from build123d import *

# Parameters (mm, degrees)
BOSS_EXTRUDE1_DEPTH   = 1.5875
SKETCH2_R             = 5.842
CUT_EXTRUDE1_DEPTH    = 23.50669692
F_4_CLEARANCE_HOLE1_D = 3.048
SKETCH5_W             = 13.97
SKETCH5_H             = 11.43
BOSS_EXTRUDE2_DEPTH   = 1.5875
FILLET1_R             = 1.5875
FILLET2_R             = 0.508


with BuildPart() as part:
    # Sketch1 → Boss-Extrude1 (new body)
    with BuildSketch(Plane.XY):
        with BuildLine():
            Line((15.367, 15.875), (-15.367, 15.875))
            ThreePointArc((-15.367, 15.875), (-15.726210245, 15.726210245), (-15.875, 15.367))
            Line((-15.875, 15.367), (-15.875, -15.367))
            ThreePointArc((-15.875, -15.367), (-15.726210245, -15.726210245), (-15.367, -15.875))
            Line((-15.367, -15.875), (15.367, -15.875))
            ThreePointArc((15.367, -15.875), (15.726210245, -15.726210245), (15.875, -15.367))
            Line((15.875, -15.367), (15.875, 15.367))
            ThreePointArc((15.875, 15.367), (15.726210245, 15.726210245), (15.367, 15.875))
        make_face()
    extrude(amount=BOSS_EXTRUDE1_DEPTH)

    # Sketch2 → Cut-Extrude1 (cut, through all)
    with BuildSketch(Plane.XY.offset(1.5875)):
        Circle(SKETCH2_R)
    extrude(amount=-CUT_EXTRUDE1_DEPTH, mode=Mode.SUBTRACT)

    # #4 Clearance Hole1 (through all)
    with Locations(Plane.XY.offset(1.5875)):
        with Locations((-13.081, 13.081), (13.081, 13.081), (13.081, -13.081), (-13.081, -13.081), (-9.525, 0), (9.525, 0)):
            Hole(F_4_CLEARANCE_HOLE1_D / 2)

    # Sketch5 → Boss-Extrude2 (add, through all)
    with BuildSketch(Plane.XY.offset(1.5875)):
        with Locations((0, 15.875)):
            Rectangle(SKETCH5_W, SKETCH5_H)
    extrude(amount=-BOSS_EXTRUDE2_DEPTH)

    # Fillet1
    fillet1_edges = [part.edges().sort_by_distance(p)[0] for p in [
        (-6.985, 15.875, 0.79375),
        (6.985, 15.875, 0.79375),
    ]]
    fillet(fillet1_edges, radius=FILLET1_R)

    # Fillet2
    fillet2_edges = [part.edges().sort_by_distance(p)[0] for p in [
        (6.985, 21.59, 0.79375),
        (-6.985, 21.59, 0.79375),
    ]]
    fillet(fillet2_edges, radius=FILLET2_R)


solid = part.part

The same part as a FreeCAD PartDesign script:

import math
import FreeCAD as App
import Part
import Sketcher
Q = App.Units.Quantity


def edges_at(feature, points):
    """Names of the edges that pass closest to the given points."""
    edges = feature.Shape.Edges
    near = lambda p: min(range(len(edges)), key=lambda i: edges[i].distToShape(Part.Vertex(*p))[0])
    return sorted({f"Edge{near(p) + 1}" for p in points})

doc = App.newDocument("Part")
params = doc.addObject("Spreadsheet::Sheet", "Params")
for row, (alias, value) in enumerate([
    ("sketch1_radius", "0.02 in"),
    ("sketch1_width", "1.21 in"),
    ("pad1_length", "0.0625 in"),
    ("sketch2_diameter", "0.46 in"),
    ("sketch3_diameter", "0.12 in"),
    ("hole_diameter", "0.12 in"),
    ("sketch4_width", "0.55 in"),
    ("sketch4_height", "0.45 in"),
    ("fillet_radius", "0.0625 in"),
    ("fillet2_radius", "0.02 in"),
], start=1):
    params.set(f"A{row}", alias)
    params.set(f"B{row}", "=" + value)
    params.setAlias(f"B{row}", alias)

body = doc.addObject("PartDesign::Body", "Body")

# Sketch on XY plane
sketch1 = body.newObject("Sketcher::SketchObject", "Sketch")
sketch1.AttachmentSupport = (doc.getObject("XY_Plane"), [""])
sketch1.MapMode = "FlatFace"
sketch1.addGeometry([
    Part.LineSegment(App.Vector(15.4, 15.9, 0), App.Vector(-15.4, 15.9, 0)),  # 0
    Part.ArcOfCircle(Part.Circle(App.Vector(-15.4, 15.4, 0), App.Vector(0, 0, 1), 0.5), math.radians(90), math.radians(180)),  # 1
    Part.LineSegment(App.Vector(-15.9, 15.4, 0), App.Vector(-15.9, -15.4, 0)),  # 2
    Part.ArcOfCircle(Part.Circle(App.Vector(-15.4, -15.4, 0), App.Vector(0, 0, 1), 0.5), math.radians(180), math.radians(270)),  # 3
    Part.LineSegment(App.Vector(-15.4, -15.9, 0), App.Vector(15.4, -15.9, 0)),  # 4
    Part.ArcOfCircle(Part.Circle(App.Vector(15.4, -15.4, 0), App.Vector(0, 0, 1), 0.5), math.radians(-90), math.radians(0)),  # 5
    Part.LineSegment(App.Vector(15.9, -15.4, 0), App.Vector(15.9, 15.4, 0)),  # 6
    Part.ArcOfCircle(Part.Circle(App.Vector(15.4, 15.4, 0), App.Vector(0, 0, 1), 0.5), math.radians(0), math.radians(90)),  # 7
], False)
sketch1.addConstraint([
    Sketcher.Constraint("Tangent", 0, 2, 1, 1),
    Sketcher.Constraint("Tangent", 1, 2, 2, 1),
    Sketcher.Constraint("Tangent", 2, 2, 3, 1),
    Sketcher.Constraint("Tangent", 3, 2, 4, 1),
    Sketcher.Constraint("Tangent", 4, 2, 5, 1),
    Sketcher.Constraint("Tangent", 5, 2, 6, 1),
    Sketcher.Constraint("Tangent", 6, 2, 7, 1),
    Sketcher.Constraint("Tangent", 7, 2, 0, 1),
    Sketcher.Constraint("Horizontal", 0),
    Sketcher.Constraint("Vertical", 2),
    Sketcher.Constraint("Horizontal", 4),
    Sketcher.Constraint("Vertical", 6),
    Sketcher.Constraint("Equal", 1, 3),
    Sketcher.Constraint("Equal", 3, 5),
    Sketcher.Constraint("Equal", 5, 7),
    Sketcher.Constraint("Symmetric", 1, 3, 5, 3, -1, 1),
    Sketcher.Constraint("Equal", 4, 2),
    Sketcher.Constraint("Radius", 1, Q("0.02 in")),
    Sketcher.Constraint("DistanceX", 0, 2, 0, 1, Q("1.21 in")),
])
sketch1.setExpression("Constraints[17]", "Params.sketch1_radius")
sketch1.setExpression("Constraints[18]", "Params.sketch1_width")
pad1 = body.newObject("PartDesign::Pad", "Pad")
pad1.Profile = sketch1
pad1.setExpression("Length", "Params.pad1_length")

# Sketch on XY plane
sketch2 = body.newObject("Sketcher::SketchObject", "Sketch001")
sketch2.AttachmentSupport = (doc.getObject("XY_Plane"), [""])
sketch2.MapMode = "FlatFace"
sketch2.AttachmentOffset = App.Placement(App.Vector(0, 0, 0.0625 * 25.4), App.Rotation())
sketch2.addGeometry(Part.Circle(App.Vector(0, 0, 0), App.Vector(0, 0, 1), 6), False)
sketch2.addConstraint([
    Sketcher.Constraint("Coincident", 0, 3, -1, 1),
    Sketcher.Constraint("Diameter", 0, Q("0.46 in")),
])
sketch2.setExpression("Constraints[1]", "Params.sketch2_diameter")
pocket1 = body.newObject("PartDesign::Pocket", "Pocket")
pocket1.Profile = sketch2
pocket1.Type = "ThroughAll"

# Sketch on XY plane
sketch3 = body.newObject("Sketcher::SketchObject", "Sketch002")
sketch3.AttachmentSupport = (doc.getObject("XY_Plane"), [""])
sketch3.MapMode = "FlatFace"
sketch3.AttachmentOffset = App.Placement(App.Vector(0, 0, 0.0625 * 25.4), App.Rotation())
sketch3.addGeometry([
    Part.Circle(App.Vector(-13.1, 13.1, 0), App.Vector(0, 0, 1), 1.5),  # 0
    Part.Circle(App.Vector(13.1, 13.1, 0), App.Vector(0, 0, 1), 1.5),  # 1
    Part.Circle(App.Vector(13.1, -13.1, 0), App.Vector(0, 0, 1), 1.5),  # 2
    Part.Circle(App.Vector(-13.1, -13.1, 0), App.Vector(0, 0, 1), 1.5),  # 3
    Part.Circle(App.Vector(-9.5, 0, 0), App.Vector(0, 0, 1), 1.5),  # 4
    Part.Circle(App.Vector(9.5, 0, 0), App.Vector(0, 0, 1), 1.5),  # 5
], False)
sketch3.addConstraint([
    Sketcher.Constraint("Equal", 0, 1),
    Sketcher.Constraint("Equal", 1, 2),
    Sketcher.Constraint("Equal", 2, 3),
    Sketcher.Constraint("Equal", 3, 4),
    Sketcher.Constraint("Equal", 4, 5),
    Sketcher.Constraint("Symmetric", 0, 3, 2, 3, -1, 1),
    Sketcher.Constraint("Symmetric", 1, 3, 3, 3, -1, 1),
    Sketcher.Constraint("Symmetric", 4, 3, 5, 3, -1, 1),
    Sketcher.Constraint("Symmetric", 0, 3, 1, 3, -2),
    Sketcher.Constraint("PointOnObject", 4, 3, -1),
    Sketcher.Constraint("Diameter", 0, Q("0.12 in")),
    Sketcher.Constraint("DistanceX", 0, 3, 1, 3, Q("1.03 in")),
    Sketcher.Constraint("DistanceY", 2, 3, 1, 3, Q("1.03 in")),
    Sketcher.Constraint("DistanceX", 0, 3, 4, 3, Q("0.14 in")),
])
sketch3.setExpression("Constraints[10]", "Params.sketch3_diameter")
doc.recompute()
hole = body.newObject("PartDesign::Hole", "Hole")
hole.Profile = sketch3
hole.ThreadType = "None"
hole.setExpression("Diameter", "Params.hole_diameter")
hole.DepthType = "ThroughAll"

# Sketch on XY plane
sketch4 = body.newObject("Sketcher::SketchObject", "Sketch003")
sketch4.AttachmentSupport = (doc.getObject("XY_Plane"), [""])
sketch4.MapMode = "FlatFace"
sketch4.AttachmentOffset = App.Placement(App.Vector(0, 0, 0.0625 * 25.4), App.Rotation())
sketch4.addGeometry([
    Part.LineSegment(App.Vector(-7, 22, 0), App.Vector(-7, 10, 0)),
    Part.LineSegment(App.Vector(-7, 10, 0), App.Vector(7, 10, 0)),
    Part.LineSegment(App.Vector(7, 10, 0), App.Vector(7, 22, 0)),
    Part.LineSegment(App.Vector(7, 22, 0), App.Vector(-7, 22, 0)),
], False)
sketch4.addConstraint([
    Sketcher.Constraint("Coincident", 0, 2, 1, 1),
    Sketcher.Constraint("Coincident", 1, 2, 2, 1),
    Sketcher.Constraint("Coincident", 2, 2, 3, 1),
    Sketcher.Constraint("Coincident", 3, 2, 0, 1),
    Sketcher.Constraint("Vertical", 0),
    Sketcher.Constraint("Horizontal", 1),
    Sketcher.Constraint("Vertical", 2),
    Sketcher.Constraint("Horizontal", 3),
    Sketcher.Constraint("DistanceX", 1, 1, 1, 2, Q("0.55 in")),
    Sketcher.Constraint("DistanceY", 0, 2, 0, 1, Q("0.45 in")),
    Sketcher.Constraint("DistanceY", -1, 1, 0, 2, Q("0.4 in")),
    Sketcher.Constraint("DistanceX", 0, 2, -1, 1, Q("0.275 in")),
])
sketch4.setExpression("Constraints[8]", "Params.sketch4_width")
sketch4.setExpression("Constraints[9]", "Params.sketch4_height")
pad2 = body.newObject("PartDesign::Pad", "Pad001")
pad2.Profile = sketch4
pad2.Type = "UpToLast"
pad2.Reversed = True
doc.recompute()

fillet = body.newObject("PartDesign::Fillet", "Fillet")
fillet.Base = (pad2, edges_at(pad2, [(-6.985, 15.875, 0.794), (6.985, 15.875, 0.794)]))
fillet.setExpression("Radius", "Params.fillet_radius")
doc.recompute()

fillet2 = body.newObject("PartDesign::Fillet", "Fillet001")
fillet2.Base = (fillet, edges_at(fillet, [(6.985, 21.59, 0.794), (-6.985, 21.59, 0.794)]))
fillet2.setExpression("Radius", "Params.fillet2_radius")

doc.recompute()
